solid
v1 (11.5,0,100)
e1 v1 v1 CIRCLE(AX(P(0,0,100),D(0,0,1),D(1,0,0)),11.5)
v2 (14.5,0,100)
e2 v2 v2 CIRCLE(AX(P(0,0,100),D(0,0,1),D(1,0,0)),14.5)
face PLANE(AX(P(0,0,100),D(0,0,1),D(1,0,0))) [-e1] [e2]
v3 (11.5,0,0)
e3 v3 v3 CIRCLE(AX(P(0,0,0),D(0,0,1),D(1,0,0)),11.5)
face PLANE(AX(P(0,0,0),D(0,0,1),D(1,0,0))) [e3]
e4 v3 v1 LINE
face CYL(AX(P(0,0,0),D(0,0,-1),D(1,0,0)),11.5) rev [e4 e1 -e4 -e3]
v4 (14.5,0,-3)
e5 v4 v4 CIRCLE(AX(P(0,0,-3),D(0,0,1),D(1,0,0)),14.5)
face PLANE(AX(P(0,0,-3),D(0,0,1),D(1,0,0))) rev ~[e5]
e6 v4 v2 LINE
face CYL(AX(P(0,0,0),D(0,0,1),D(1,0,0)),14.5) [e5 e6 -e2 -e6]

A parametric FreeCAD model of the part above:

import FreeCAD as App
import Part
import Sketcher
from FreeCAD import Vector

doc = App.newDocument("Part")
params = doc.addObject("Spreadsheet::Sheet", "Params")
for row, (alias, value) in enumerate([
    ("sketch1_diameter", "29 mm"),
    ("sketch1_diameter2", "23 mm"),
    ("pad1_length", "100 mm"),
    ("sketch2_diameter", "29 mm"),
    ("pad2_length", "3 mm"),
], start=1):
    params.set(f"A{row}", alias)
    params.set(f"B{row}", "=" + value)
    params.setAlias(f"B{row}", alias)

body = doc.addObject("PartDesign::Body", "Body")

# Sketch on XY plane
sketch1 = doc.addObject("Sketcher::SketchObject", "Sketch")
body.addObject(sketch1)
sketch1.AttachmentSupport = (doc.XY_Plane, [""])
sketch1.MapMode = "FlatFace"
sketch1.addGeometry([
    Part.Circle(Vector(0, 0, 0), Vector(0, 0, 1), 14.5),
    Part.Circle(Vector(0, 0, 0), Vector(0, 0, 1), 11.5),
], False)
sketch1.addConstraint([
    Sketcher.Constraint("Coincident", 0, 3, -1, 1),
    Sketcher.Constraint("Coincident", 1, 3, -1, 1),
    Sketcher.Constraint("Diameter", 0, 29.0),
    Sketcher.Constraint("Diameter", 1, 23.0),
])
sketch1.setExpression("Constraints[2]", "Params.sketch1_diameter")
sketch1.setExpression("Constraints[3]", "Params.sketch1_diameter2")
pad1 = doc.addObject("PartDesign::Pad", "Pad")
body.addObject(pad1)
pad1.Profile = sketch1
pad1.setExpression("Length", "Params.pad1_length")

# Sketch on XY plane
sketch2 = doc.addObject("Sketcher::SketchObject", "Sketch001")
body.addObject(sketch2)
sketch2.AttachmentSupport = (doc.XY_Plane, [""])
sketch2.MapMode = "FlatFace"
sketch2.addGeometry(Part.Circle(Vector(0, 0, 0), Vector(0, 0, 1), 14.5), False)
sketch2.addConstraint([
    Sketcher.Constraint("Coincident", 0, 3, -1, 1),
    Sketcher.Constraint("Diameter", 0, 29.0),
])
sketch2.setExpression("Constraints[1]", "Params.sketch2_diameter")
pad2 = doc.addObject("PartDesign::Pad", "Pad001")
body.addObject(pad2)
pad2.Profile = sketch2
pad2.setExpression("Length", "Params.pad2_length")
pad2.Reversed = True

doc.recompute()
